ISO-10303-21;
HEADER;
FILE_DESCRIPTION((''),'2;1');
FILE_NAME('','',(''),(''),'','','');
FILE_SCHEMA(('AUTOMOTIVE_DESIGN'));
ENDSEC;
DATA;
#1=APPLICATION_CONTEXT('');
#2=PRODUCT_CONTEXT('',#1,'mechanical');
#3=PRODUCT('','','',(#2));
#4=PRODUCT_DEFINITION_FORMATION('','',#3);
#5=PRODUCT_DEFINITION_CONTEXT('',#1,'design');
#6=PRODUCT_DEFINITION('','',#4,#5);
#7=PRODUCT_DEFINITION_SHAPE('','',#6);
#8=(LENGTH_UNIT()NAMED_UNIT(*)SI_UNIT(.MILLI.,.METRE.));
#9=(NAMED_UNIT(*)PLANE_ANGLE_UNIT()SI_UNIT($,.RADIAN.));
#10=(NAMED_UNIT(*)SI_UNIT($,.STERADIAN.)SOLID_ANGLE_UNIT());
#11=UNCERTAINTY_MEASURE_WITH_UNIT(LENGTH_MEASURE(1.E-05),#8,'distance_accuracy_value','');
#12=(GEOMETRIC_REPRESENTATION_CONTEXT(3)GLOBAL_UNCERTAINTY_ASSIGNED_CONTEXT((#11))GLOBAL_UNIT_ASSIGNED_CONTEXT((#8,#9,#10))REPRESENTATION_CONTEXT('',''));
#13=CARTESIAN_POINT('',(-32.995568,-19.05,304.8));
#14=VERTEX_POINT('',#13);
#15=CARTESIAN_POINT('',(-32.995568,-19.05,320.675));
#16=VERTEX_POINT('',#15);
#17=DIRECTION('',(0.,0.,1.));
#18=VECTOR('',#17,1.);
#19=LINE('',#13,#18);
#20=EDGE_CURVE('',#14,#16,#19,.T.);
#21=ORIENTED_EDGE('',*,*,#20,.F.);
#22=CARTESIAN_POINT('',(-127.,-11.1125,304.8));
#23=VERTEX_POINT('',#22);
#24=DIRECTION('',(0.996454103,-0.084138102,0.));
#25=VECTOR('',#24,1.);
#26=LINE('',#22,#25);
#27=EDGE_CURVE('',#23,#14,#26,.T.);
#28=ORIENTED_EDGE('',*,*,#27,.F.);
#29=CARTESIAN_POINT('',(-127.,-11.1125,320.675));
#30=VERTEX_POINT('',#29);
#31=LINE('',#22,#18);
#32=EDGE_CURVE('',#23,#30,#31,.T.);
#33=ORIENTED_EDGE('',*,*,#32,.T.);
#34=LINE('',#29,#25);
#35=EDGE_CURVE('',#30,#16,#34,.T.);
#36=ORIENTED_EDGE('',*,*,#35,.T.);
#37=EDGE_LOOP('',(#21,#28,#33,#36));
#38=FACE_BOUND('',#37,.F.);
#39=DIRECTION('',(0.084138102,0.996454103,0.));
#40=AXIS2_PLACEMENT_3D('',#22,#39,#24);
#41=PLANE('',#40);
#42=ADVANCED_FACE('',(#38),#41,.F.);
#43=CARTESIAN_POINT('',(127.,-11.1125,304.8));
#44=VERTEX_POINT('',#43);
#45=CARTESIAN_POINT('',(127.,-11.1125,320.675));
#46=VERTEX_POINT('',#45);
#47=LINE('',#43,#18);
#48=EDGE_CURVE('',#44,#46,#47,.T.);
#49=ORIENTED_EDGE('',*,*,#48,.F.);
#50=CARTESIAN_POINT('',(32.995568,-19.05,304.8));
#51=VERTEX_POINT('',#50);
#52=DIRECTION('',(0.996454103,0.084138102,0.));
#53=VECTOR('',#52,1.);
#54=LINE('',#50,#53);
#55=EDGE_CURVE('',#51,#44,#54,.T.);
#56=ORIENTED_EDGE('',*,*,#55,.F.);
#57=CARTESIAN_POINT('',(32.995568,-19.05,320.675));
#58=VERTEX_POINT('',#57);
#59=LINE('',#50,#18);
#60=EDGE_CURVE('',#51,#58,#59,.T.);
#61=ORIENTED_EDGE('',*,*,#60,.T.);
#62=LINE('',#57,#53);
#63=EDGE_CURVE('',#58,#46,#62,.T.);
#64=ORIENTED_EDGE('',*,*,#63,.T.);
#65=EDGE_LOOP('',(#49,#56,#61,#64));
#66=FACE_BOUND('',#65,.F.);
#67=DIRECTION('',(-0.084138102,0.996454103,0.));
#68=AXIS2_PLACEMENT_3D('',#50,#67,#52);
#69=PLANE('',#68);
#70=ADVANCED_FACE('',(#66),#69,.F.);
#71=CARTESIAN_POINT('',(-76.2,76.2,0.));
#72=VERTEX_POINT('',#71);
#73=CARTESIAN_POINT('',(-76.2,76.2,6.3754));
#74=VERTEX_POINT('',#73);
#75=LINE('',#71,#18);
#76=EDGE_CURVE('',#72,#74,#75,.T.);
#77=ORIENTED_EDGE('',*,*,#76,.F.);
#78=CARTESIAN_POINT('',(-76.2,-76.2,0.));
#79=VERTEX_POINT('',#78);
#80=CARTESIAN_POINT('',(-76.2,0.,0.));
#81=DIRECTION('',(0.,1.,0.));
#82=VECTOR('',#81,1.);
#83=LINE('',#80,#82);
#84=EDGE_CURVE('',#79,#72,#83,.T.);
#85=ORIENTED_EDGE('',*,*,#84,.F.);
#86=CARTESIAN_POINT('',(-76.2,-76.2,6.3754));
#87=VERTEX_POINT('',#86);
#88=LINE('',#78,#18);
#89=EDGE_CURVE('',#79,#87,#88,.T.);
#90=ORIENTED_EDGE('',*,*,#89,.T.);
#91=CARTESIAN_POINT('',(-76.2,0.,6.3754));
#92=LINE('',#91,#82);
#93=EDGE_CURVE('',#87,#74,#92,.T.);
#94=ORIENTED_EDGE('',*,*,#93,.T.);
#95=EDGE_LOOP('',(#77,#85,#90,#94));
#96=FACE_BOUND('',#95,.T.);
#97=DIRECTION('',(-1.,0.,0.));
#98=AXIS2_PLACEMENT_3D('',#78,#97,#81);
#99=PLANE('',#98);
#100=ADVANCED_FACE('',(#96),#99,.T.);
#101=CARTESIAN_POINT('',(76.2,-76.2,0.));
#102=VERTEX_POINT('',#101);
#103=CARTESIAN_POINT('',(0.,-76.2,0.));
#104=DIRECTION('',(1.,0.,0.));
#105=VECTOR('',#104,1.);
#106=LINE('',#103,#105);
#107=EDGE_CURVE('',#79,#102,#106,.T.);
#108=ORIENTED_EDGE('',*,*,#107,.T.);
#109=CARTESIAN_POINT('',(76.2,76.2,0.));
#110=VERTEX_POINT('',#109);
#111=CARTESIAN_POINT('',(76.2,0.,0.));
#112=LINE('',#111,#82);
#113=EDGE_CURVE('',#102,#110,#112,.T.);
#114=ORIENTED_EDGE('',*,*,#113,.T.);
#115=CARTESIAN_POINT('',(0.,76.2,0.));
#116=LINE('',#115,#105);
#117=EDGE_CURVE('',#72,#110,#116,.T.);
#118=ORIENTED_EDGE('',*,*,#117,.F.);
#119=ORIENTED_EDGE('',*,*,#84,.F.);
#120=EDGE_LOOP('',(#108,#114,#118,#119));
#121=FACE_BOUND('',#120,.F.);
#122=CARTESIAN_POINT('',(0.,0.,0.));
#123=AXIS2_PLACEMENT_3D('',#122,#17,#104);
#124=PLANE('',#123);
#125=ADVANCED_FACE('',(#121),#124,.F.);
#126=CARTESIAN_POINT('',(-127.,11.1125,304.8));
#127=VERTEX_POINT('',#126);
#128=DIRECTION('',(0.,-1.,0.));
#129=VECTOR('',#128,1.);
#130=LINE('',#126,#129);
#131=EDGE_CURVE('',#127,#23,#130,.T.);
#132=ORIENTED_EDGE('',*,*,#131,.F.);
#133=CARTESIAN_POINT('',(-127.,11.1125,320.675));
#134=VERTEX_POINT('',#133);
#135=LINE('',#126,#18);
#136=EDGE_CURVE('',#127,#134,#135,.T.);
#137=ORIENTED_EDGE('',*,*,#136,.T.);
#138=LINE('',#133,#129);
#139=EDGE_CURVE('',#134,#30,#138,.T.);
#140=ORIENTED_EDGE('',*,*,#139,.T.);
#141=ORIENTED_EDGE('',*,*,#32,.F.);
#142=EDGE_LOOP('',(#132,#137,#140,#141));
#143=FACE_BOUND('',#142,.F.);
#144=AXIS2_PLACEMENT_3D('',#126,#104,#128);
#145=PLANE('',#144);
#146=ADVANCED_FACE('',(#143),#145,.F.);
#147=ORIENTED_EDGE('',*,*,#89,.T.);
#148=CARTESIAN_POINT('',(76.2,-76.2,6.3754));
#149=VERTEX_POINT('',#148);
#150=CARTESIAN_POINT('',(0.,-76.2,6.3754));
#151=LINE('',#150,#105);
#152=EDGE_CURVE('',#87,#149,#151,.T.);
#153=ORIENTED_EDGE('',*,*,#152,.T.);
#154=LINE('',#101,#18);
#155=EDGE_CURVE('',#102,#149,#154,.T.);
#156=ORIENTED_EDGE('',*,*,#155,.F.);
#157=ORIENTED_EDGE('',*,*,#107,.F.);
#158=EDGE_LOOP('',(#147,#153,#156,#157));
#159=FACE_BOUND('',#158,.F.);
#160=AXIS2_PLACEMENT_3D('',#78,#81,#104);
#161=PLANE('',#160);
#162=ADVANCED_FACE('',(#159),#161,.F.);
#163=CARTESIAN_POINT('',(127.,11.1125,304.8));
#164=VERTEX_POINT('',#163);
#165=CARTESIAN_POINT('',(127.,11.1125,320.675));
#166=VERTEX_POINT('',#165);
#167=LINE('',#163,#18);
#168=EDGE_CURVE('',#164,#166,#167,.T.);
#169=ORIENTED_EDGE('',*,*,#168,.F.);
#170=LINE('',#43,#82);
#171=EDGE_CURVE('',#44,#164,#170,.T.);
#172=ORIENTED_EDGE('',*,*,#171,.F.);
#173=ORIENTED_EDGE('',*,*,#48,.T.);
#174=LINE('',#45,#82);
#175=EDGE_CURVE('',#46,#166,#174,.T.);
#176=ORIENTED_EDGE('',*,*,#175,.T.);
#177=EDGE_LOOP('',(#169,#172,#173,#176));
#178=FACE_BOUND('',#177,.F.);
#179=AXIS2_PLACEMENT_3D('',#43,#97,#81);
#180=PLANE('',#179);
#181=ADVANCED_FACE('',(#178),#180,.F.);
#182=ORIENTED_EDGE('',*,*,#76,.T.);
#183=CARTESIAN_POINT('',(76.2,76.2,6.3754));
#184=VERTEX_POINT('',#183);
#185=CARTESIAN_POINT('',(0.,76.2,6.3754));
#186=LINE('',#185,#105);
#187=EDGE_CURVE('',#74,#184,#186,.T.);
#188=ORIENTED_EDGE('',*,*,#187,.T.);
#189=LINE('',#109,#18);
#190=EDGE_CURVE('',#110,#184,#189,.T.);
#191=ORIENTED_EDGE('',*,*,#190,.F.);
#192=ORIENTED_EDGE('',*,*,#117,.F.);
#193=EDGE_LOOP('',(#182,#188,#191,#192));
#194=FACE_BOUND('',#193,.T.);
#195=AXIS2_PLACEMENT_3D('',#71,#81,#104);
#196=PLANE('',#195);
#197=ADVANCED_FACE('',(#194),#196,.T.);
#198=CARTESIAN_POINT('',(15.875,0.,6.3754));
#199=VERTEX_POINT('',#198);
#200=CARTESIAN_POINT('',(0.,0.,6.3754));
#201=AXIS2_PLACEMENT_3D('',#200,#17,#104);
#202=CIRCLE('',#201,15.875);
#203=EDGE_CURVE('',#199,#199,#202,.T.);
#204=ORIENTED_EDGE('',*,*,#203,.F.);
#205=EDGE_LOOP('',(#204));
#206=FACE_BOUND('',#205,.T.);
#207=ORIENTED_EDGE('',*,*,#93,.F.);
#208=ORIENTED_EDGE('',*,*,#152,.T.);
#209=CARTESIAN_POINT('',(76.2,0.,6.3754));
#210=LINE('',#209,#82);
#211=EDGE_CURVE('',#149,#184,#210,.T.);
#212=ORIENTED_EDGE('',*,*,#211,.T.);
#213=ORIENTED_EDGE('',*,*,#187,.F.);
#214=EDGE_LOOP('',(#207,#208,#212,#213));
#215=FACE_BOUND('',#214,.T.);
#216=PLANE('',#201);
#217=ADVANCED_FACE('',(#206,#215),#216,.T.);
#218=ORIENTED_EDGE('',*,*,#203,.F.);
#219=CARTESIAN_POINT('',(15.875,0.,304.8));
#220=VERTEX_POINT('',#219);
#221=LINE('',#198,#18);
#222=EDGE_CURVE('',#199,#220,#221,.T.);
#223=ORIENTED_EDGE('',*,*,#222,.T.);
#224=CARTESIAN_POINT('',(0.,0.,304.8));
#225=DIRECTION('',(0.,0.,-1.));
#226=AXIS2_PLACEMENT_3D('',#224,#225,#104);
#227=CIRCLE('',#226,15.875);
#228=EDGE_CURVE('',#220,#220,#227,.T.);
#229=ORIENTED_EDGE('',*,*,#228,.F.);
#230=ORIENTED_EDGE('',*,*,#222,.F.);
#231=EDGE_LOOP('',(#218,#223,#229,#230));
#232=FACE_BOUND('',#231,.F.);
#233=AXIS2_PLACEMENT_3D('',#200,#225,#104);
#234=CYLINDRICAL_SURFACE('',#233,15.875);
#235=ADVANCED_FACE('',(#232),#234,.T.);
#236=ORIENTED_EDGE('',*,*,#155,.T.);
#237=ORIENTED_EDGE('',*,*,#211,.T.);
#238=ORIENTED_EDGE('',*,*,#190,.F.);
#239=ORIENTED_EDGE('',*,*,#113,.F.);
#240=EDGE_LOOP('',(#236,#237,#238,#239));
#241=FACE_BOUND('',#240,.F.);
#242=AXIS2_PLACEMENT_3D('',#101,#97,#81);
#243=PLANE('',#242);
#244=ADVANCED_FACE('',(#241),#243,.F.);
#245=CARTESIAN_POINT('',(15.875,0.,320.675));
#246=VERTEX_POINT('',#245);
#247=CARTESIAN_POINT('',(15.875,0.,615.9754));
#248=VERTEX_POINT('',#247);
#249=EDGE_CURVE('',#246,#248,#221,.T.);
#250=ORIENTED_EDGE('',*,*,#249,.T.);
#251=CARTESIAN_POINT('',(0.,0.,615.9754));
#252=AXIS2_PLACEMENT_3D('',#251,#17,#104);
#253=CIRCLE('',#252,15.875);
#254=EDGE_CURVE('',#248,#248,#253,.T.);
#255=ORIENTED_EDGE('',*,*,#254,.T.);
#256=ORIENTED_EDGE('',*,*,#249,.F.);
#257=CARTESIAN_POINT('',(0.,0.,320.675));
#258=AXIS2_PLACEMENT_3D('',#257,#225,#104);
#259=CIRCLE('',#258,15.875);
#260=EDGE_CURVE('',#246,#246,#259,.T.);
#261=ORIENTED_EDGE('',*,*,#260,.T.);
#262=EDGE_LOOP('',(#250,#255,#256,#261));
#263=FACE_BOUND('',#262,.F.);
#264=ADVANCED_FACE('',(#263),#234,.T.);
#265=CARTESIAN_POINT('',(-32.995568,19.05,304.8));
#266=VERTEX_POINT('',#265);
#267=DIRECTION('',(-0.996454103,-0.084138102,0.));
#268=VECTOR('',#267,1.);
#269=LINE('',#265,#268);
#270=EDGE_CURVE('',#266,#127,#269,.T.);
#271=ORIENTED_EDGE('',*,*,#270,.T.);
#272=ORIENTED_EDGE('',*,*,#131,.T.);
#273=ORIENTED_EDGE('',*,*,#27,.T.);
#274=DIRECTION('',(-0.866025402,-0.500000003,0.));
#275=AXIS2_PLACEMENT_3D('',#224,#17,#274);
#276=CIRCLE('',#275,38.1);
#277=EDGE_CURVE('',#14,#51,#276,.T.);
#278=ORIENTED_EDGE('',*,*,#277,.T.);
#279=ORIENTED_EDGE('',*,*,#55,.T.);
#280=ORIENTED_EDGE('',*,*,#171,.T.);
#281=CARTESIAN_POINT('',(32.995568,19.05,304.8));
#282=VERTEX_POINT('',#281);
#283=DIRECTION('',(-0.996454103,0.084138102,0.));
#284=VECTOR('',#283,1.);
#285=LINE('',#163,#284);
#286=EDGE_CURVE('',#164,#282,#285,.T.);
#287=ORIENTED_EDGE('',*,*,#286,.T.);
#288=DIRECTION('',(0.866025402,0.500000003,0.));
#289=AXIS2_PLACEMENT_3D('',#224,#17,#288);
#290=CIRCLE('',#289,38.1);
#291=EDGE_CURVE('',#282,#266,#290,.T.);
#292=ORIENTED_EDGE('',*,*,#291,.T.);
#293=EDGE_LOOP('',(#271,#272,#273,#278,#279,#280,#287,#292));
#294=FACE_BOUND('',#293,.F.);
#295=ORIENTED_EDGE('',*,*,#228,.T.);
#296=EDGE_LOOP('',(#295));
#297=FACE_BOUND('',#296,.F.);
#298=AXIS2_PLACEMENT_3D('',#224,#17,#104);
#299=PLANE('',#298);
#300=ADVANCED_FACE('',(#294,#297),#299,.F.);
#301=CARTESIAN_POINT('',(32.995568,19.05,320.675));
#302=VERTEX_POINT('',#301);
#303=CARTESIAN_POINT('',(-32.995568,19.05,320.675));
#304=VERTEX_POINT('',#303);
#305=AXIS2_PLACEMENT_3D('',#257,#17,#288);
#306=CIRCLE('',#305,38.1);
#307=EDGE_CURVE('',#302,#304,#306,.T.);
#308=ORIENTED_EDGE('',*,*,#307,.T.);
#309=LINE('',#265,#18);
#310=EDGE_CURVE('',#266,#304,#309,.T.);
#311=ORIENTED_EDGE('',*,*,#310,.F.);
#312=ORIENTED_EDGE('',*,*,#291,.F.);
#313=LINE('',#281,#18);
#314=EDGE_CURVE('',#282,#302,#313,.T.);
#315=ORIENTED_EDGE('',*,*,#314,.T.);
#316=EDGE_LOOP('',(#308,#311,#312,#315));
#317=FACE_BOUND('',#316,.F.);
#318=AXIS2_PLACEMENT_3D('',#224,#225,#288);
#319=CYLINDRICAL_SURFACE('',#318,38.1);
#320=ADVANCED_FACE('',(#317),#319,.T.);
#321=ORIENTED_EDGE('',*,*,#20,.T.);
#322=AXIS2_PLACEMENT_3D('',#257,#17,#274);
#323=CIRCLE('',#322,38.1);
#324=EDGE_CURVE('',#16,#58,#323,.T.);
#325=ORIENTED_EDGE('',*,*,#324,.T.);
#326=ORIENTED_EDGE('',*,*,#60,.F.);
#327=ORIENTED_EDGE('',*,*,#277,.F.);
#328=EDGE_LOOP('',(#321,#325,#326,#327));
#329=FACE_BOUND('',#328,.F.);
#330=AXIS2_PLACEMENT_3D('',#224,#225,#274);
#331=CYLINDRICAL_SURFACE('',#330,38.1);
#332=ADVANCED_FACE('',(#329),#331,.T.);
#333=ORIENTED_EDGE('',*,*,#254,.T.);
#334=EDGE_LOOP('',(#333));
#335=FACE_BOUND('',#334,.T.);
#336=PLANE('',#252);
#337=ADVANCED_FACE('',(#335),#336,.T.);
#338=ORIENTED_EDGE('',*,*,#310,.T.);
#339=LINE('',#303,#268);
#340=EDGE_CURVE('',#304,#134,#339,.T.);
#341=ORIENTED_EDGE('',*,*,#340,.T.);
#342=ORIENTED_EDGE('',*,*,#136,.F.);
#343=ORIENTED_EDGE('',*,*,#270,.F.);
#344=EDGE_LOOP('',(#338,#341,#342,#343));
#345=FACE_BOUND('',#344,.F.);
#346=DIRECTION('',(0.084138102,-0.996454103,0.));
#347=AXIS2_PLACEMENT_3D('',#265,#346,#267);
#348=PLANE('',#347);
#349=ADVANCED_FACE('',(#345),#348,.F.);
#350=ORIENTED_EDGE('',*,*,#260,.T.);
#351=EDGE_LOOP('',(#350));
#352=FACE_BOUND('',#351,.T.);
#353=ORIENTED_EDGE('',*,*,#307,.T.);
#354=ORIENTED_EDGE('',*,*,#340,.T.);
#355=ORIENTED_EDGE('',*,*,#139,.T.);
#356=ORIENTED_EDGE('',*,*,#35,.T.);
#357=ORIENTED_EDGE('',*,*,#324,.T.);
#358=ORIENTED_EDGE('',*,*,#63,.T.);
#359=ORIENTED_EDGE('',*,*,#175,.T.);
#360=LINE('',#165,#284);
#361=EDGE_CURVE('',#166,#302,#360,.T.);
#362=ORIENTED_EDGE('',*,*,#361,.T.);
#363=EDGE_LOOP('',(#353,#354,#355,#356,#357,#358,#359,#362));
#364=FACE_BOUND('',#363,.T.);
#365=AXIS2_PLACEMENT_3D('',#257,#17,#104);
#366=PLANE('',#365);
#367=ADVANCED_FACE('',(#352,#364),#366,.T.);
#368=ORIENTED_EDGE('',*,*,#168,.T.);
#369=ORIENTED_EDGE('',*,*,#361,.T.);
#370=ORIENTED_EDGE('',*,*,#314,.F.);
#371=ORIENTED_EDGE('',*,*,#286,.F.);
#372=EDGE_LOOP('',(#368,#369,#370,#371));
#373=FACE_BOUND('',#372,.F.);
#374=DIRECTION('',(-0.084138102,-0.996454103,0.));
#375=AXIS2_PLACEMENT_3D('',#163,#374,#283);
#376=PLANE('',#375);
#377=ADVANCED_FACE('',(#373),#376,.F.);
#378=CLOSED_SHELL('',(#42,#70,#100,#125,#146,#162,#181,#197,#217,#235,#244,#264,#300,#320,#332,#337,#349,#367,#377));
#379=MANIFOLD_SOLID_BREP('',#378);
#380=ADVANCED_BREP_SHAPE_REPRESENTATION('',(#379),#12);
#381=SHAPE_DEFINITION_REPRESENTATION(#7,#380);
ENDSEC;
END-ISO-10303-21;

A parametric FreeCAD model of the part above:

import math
import FreeCAD as App
import Part
import Sketcher

V = App.Vector
Q = App.Units.Quantity

doc = App.newDocument("Part")
body = doc.addObject("PartDesign::Body", "Body")

# Sketch on XY plane
sketch1 = doc.addObject("Sketcher::SketchObject", "Sketch")
body.addObject(sketch1)
sketch1.AttachmentSupport = (doc.XY_Plane, [""])
sketch1.MapMode = "FlatFace"
sketch1.addGeometry([
    Part.LineSegment(V(-76, 76, 0), V(-76, -76, 0)),
    Part.LineSegment(V(-76, -76, 0), V(76, -76, 0)),
    Part.LineSegment(V(76, -76, 0), V(76, 76, 0)),
    Part.LineSegment(V(76, 76, 0), V(-76, 76, 0)),
], False)
sketch1.addConstraint([
    Sketcher.Constraint("Coincident", 0, 2, 1, 1),
    Sketcher.Constraint("Coincident", 1, 2, 2, 1),
    Sketcher.Constraint("Coincident", 2, 2, 3, 1),
    Sketcher.Constraint("Coincident", 3, 2, 0, 1),
    Sketcher.Constraint("Vertical", 0),
    Sketcher.Constraint("Horizontal", 1),
    Sketcher.Constraint("Vertical", 2),
    Sketcher.Constraint("Horizontal", 3),
    Sketcher.Constraint("Symmetric", 0, 2, 2, 2, -1, 1),
    Sketcher.Constraint("Equal", 3, 0),
    Sketcher.Constraint("DistanceX", 1, 1, 1, 2, Q("6 in")),
])
pad1 = doc.addObject("PartDesign::Pad", "Pad")
body.addObject(pad1)
pad1.Profile = sketch1
pad1.Length = Q("0.251 in")

# Sketch on XY plane
sketch2 = doc.addObject("Sketcher::SketchObject", "Sketch001")
body.addObject(sketch2)
sketch2.AttachmentSupport = (doc.XY_Plane, [""])
sketch2.MapMode = "FlatFace"
sketch2.AttachmentOffset = App.Placement(V(0, 0, 0.251 * 25.4), App.Rotation())
sketch2.addGeometry(Part.Circle(V(0, 0, 0), V(0, 0, 1), 16), False)
sketch2.addConstraint([
    Sketcher.Constraint("Coincident", 0, 3, -1, 1),
    Sketcher.Constraint("Diameter", 0, Q("1.25 in")),
])
pad2 = doc.addObject("PartDesign::Pad", "Pad001")
body.addObject(pad2)
pad2.Profile = sketch2
pad2.Length = Q("24 in")

# Sketch on XY plane
sketch3 = doc.addObject("Sketcher::SketchObject", "Sketch002")
body.addObject(sketch3)
sketch3.AttachmentSupport = (doc.XY_Plane, [""])
sketch3.MapMode = "FlatFace"
sketch3.AttachmentOffset = App.Placement(V(0, 0, 12 * 25.4), App.Rotation())
sketch3.addGeometry([
    Part.LineSegment(V(127, 11, 0), V(33, 19, 0)),  # 0
    Part.ArcOfCircle(Part.Circle(V(0, 0, 0), V(0, 0, 1), 38), math.radians(30), math.radians(150)),  # 1
    Part.LineSegment(V(-33, 19, 0), V(-127, 11, 0)),  # 2
    Part.LineSegment(V(-127, 11, 0), V(-127, -11, 0)),  # 3
    Part.LineSegment(V(-127, -11, 0), V(-33, -19, 0)),  # 4
    Part.ArcOfCircle(Part.Circle(V(0, 0, 0), V(0, 0, 1), 38), math.radians(-150), math.radians(-30)),  # 5
    Part.LineSegment(V(33, -19, 0), V(127, -11, 0)),  # 6
    Part.LineSegment(V(127, -11, 0), V(127, 11, 0)),  # 7
], False)
sketch3.addConstraint([
    Sketcher.Constraint("Coincident", 0, 2, 1, 1),
    Sketcher.Constraint("Coincident", 1, 2, 2, 1),
    Sketcher.Constraint("Coincident", 2, 2, 3, 1),
    Sketcher.Constraint("Coincident", 3, 2, 4, 1),
    Sketcher.Constraint("Coincident", 4, 2, 5, 1),
    Sketcher.Constraint("Coincident", 5, 2, 6, 1),
    Sketcher.Constraint("Coincident", 6, 2, 7, 1),
    Sketcher.Constraint("Coincident", 7, 2, 0, 1),
    Sketcher.Constraint("Vertical", 3),
    Sketcher.Constraint("Vertical", 7),
    Sketcher.Constraint("Coincident", 1, 3, -1, 1),
    Sketcher.Constraint("Coincident", 5, 3, -1, 1),
    Sketcher.Constraint("Equal", 1, 5),
    Sketcher.Constraint("Symmetric", 2, 2, 6, 2, -1, 1),
    Sketcher.Constraint("Parallel", 0, 4),
    Sketcher.Constraint("Parallel", 2, 6),
    Sketcher.Constraint("Horizontal", 0, 2, 1, 2),
    Sketcher.Constraint("Horizontal", 4, 2, 5, 2),
    Sketcher.Constraint("Horizontal", 3, 2, 6, 2),
    Sketcher.Constraint("Radius", 1, Q("1.5 in")),
    Sketcher.Constraint("DistanceX", 2, 2, -1, 1, Q("5 in")),
    Sketcher.Constraint("DistanceY", 4, 2, 1, 2, Q("1.5 in")),
    Sketcher.Constraint("DistanceY", 3, 2, 3, 1, Q("0.875 in")),
])
pad3 = doc.addObject("PartDesign::Pad", "Pad002")
body.addObject(pad3)
pad3.Profile = sketch3
pad3.Length = Q("0.625 in")

doc.recompute()
